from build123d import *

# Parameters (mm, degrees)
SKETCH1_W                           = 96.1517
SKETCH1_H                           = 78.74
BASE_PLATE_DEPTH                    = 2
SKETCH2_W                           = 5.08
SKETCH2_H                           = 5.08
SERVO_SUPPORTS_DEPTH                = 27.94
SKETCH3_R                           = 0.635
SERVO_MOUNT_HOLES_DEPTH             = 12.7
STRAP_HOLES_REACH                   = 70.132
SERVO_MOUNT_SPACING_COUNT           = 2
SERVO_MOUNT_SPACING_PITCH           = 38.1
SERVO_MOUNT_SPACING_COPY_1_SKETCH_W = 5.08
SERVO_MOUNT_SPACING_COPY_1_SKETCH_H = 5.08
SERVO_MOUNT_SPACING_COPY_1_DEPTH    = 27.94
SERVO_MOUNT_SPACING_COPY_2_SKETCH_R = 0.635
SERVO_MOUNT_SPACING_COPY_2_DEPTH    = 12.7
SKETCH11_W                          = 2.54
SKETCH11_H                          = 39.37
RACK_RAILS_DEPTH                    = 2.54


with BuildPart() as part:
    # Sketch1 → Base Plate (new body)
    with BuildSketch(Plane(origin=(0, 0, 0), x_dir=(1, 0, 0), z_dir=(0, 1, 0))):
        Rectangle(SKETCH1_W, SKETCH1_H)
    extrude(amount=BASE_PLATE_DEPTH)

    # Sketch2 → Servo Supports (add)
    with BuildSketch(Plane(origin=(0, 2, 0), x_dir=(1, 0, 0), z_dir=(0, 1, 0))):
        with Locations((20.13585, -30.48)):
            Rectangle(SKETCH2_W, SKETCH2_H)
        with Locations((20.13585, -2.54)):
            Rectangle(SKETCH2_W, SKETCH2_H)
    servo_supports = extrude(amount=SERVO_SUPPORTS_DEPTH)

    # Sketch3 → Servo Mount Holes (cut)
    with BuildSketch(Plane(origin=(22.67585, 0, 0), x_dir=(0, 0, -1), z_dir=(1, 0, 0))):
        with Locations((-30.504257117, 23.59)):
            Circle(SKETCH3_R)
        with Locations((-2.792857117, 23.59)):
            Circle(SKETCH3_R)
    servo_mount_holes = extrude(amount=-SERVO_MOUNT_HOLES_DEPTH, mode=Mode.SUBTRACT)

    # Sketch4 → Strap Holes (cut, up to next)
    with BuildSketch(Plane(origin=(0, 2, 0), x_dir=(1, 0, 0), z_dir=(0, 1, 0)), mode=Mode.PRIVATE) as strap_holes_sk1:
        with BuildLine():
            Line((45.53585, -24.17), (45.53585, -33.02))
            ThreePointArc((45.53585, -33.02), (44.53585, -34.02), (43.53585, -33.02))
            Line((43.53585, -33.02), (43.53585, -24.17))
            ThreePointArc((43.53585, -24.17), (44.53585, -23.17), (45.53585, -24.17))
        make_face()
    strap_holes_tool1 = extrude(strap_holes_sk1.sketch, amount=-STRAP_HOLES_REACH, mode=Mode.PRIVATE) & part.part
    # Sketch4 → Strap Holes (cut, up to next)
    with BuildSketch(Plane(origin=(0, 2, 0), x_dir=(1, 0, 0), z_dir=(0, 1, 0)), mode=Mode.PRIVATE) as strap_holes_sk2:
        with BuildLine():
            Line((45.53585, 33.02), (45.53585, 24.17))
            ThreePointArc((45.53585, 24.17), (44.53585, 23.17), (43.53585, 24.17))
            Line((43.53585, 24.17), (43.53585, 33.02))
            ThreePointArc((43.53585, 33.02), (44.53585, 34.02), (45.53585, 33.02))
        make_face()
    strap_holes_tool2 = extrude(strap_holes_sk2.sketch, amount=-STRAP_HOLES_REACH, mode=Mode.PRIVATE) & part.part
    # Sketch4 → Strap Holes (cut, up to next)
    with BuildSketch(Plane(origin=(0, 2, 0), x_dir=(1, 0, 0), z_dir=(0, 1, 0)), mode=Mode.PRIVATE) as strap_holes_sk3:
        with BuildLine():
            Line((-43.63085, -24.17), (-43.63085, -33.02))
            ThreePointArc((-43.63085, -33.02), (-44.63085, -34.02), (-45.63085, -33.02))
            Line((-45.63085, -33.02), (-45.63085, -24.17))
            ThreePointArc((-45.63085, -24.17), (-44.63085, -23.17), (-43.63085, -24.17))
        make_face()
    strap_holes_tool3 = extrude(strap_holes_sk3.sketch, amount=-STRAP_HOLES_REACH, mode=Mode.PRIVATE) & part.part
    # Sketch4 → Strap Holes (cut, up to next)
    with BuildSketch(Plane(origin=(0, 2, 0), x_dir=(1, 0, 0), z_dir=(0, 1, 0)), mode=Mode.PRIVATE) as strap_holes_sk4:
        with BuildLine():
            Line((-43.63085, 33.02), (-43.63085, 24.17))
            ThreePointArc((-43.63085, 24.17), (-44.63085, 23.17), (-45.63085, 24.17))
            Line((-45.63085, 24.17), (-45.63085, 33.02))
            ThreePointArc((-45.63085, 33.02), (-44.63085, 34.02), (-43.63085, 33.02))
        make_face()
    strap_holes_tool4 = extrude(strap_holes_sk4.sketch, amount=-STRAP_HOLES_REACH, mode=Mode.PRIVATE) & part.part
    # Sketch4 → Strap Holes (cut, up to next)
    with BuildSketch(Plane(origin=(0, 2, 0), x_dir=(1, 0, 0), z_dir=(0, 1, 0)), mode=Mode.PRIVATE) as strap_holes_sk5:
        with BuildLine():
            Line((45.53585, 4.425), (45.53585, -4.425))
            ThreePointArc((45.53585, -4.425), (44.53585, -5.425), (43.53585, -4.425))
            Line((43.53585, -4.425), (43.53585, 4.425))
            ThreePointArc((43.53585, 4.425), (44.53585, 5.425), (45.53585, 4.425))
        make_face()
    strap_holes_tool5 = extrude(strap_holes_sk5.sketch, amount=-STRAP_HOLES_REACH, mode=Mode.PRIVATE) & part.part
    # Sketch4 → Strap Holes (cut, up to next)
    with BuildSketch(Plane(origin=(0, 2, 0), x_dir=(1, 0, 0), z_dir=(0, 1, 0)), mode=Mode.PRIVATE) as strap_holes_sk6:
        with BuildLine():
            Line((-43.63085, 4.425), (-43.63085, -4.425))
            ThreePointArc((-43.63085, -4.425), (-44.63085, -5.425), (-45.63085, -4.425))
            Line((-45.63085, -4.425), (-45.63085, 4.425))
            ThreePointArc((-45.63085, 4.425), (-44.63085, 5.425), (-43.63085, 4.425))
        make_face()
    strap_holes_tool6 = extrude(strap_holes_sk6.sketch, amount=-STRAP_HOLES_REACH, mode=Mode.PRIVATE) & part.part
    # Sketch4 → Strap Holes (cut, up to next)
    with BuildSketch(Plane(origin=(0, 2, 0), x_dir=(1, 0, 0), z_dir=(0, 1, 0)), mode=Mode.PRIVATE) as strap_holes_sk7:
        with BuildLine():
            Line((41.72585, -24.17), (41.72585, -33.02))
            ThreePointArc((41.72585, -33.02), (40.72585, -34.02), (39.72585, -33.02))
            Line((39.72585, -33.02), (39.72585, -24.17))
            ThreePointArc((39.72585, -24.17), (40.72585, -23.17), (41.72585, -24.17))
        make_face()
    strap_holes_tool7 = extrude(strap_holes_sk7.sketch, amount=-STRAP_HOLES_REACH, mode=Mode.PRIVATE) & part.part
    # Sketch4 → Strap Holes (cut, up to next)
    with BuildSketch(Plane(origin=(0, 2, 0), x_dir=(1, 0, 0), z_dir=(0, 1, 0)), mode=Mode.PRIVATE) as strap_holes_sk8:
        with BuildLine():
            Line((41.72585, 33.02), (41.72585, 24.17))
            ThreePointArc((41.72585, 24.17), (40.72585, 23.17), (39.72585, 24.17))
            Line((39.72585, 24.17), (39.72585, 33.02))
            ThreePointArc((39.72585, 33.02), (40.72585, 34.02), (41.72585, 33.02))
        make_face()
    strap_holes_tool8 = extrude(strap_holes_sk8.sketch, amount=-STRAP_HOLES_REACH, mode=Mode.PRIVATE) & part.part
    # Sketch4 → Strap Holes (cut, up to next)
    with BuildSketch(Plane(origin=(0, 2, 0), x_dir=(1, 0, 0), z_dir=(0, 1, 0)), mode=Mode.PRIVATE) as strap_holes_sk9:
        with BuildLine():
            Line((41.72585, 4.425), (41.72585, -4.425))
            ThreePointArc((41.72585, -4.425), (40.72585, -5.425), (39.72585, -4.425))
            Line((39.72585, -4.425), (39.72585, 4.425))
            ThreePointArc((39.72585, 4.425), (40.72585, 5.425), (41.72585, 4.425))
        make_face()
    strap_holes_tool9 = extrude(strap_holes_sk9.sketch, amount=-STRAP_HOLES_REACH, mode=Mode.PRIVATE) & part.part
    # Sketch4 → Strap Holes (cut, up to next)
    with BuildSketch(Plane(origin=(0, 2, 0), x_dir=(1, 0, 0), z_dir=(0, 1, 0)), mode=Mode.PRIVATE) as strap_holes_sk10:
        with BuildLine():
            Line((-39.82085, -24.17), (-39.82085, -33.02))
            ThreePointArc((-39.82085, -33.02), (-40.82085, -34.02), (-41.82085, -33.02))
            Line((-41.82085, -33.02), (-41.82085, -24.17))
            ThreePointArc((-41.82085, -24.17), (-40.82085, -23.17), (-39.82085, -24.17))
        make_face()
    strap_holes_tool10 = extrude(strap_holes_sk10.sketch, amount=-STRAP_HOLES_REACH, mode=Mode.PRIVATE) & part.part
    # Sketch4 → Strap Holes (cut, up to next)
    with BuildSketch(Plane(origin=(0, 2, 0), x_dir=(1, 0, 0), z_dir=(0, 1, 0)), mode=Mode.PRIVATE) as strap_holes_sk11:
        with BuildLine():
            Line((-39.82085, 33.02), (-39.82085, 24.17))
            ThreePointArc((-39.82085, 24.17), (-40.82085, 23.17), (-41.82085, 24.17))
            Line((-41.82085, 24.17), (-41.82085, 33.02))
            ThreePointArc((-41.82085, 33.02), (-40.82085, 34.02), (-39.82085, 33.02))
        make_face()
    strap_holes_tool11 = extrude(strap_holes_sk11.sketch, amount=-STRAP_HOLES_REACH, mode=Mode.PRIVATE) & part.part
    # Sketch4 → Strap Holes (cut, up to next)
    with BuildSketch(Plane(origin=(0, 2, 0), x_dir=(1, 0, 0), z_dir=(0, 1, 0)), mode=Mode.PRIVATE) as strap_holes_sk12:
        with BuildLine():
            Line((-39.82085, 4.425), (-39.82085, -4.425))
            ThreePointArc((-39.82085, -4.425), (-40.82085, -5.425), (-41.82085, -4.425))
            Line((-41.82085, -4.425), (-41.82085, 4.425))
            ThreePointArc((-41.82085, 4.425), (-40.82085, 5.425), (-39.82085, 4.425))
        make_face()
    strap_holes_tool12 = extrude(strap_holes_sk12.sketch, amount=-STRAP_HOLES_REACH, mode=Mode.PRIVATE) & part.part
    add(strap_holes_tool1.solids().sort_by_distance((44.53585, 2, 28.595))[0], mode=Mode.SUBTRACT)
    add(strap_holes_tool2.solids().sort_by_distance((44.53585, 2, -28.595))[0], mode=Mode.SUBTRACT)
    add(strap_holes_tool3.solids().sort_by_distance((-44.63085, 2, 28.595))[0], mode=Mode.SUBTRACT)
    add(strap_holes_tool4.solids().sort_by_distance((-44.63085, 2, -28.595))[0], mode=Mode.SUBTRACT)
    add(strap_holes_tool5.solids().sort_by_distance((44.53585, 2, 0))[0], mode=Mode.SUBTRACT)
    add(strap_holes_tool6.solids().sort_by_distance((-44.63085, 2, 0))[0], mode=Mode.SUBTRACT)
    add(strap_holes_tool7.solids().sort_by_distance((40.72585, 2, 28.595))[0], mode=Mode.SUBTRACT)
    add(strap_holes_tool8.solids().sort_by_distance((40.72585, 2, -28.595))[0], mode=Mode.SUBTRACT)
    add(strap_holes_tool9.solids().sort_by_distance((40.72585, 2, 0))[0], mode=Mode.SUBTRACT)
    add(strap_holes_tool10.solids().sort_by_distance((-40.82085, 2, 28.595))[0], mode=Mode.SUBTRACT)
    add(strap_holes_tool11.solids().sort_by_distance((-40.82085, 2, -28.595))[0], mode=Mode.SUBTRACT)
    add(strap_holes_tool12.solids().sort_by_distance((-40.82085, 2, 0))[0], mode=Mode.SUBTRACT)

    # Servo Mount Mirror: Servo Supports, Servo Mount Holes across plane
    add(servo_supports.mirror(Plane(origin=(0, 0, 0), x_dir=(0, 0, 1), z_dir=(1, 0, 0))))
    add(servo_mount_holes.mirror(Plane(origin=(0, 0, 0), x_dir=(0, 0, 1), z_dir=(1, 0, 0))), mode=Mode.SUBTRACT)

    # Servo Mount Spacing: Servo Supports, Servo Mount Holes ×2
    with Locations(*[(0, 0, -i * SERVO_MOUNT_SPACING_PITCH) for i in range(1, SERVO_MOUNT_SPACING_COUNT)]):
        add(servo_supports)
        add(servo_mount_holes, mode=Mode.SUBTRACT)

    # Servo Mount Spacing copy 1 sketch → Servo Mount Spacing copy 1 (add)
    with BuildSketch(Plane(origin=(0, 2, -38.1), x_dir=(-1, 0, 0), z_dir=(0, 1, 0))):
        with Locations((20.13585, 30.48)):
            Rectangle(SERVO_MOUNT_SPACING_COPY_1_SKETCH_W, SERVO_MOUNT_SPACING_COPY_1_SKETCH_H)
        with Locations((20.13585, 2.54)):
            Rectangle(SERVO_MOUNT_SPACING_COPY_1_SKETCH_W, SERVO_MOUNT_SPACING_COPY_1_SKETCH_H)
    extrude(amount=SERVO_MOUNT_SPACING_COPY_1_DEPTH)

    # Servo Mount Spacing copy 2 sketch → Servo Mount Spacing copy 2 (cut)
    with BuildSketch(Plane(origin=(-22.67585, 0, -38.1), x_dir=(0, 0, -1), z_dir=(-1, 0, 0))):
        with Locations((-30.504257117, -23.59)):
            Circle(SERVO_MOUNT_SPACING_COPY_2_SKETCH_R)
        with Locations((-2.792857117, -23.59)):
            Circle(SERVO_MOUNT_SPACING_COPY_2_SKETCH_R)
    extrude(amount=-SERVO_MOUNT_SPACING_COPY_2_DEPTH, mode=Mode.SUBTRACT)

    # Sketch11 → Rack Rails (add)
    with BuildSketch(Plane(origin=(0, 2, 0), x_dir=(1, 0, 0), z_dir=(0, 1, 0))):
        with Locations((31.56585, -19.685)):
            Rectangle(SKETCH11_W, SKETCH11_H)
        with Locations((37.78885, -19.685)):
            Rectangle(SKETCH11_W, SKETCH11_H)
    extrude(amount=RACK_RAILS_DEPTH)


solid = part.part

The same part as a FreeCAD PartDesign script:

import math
import FreeCAD as App
import Part
import Sketcher
Q = App.Units.Quantity


def add_polygon(sketch, points):
    """Adds a closed chain of lines whose ends are joined by coincident constraints."""
    first, n = sketch.GeometryCount, len(points)
    for a, b in zip(points, points[1:] + points[:1]):
        sketch.addGeometry(Part.LineSegment(App.Vector(*a, 0), App.Vector(*b, 0)), False)
    for i in range(n):
        sketch.addConstraint(Sketcher.Constraint("Coincident", first + i, 2, first + (i + 1) % n, 1))

doc = App.newDocument("Part")
body = doc.addObject("PartDesign::Body", "Body")

sketch1 = body.newObject("Sketcher::SketchObject", "Sketch")
sketch1.AttachmentSupport = (doc.getObject("XZ_Plane"), [""])
sketch1.MapMode = "FlatFace"
add_polygon(sketch1, [(-48, -39), (-48, 39), (48, 39), (48, -39)])
sketch1.addConstraint(Sketcher.Constraint("Vertical", 0))
sketch1.addConstraint(Sketcher.Constraint("Horizontal", 1))
sketch1.addConstraint(Sketcher.Constraint("Vertical", 2))
sketch1.addConstraint(Sketcher.Constraint("Horizontal", 3))
sketch1.addConstraint(Sketcher.Constraint("Symmetric", 0, 2, 2, 2, -1, 1))
sketch1.addConstraint(Sketcher.Constraint("DistanceY", 0, 1, 0, 2, Q("3.1 in")))
sketch1.addConstraint(Sketcher.Constraint("DistanceX", 1, 1, 1, 2, Q("3.7855 in")))
pad1 = body.newObject("PartDesign::Pad", "Pad")
pad1.Profile = sketch1
pad1.Length = 2
pad1.Reversed = True

sketch2 = body.newObject("Sketcher::SketchObject", "Sketch001")
sketch2.AttachmentSupport = (doc.getObject("XZ_Plane"), [""])
sketch2.MapMode = "FlatFace"
sketch2.AttachmentOffset = App.Placement(App.Vector(0, 0, -2), App.Rotation())
add_polygon(sketch2, [(18, 28), (18, 33), (23, 33), (23, 28)])
add_polygon(sketch2, [(18, 0), (18, 5), (23, 5), (23, 0)])
sketch2.addConstraint(Sketcher.Constraint("Vertical", 0))
sketch2.addConstraint(Sketcher.Constraint("Horizontal", 1))
sketch2.addConstraint(Sketcher.Constraint("Vertical", 2))
sketch2.addConstraint(Sketcher.Constraint("Horizontal", 3))
sketch2.addConstraint(Sketcher.Constraint("Vertical", 4))
sketch2.addConstraint(Sketcher.Constraint("Horizontal", 5))
sketch2.addConstraint(Sketcher.Constraint("Vertical", 6))
sketch2.addConstraint(Sketcher.Constraint("Horizontal", 7))
sketch2.addConstraint(Sketcher.Constraint("PointOnObject", 6, 2, -1))
sketch2.addConstraint(Sketcher.Constraint("Vertical", 3, 2, 4, 2))
sketch2.addConstraint(Sketcher.Constraint("Vertical", 2, 2, 5, 2))
sketch2.addConstraint(Sketcher.Constraint("Equal", 7, 0))
sketch2.addConstraint(Sketcher.Constraint("Equal", 2, 4))
sketch2.addConstraint(Sketcher.Constraint("DistanceX", 1, 1, 1, 2, Q("0.2 in")))
sketch2.addConstraint(Sketcher.Constraint("DistanceY", -1, 1, 0, 2, Q("1.3 in")))
sketch2.addConstraint(Sketcher.Constraint("DistanceX", -1, 1, 0, 2, Q("17.59585 mm")))
pad2 = body.newObject("PartDesign::Pad", "Pad001")
pad2.Profile = sketch2
pad2.Length = Q("1.1 in")
pad2.Reversed = True

sketch3 = body.newObject("Sketcher::SketchObject", "Sketch002")
sketch3.AttachmentSupport = (doc.getObject("YZ_Plane"), [""])
sketch3.MapMode = "FlatFace"
sketch3.AttachmentOffset = App.Placement(App.Vector(0, 0, 22.67585), App.Rotation())
sketch3.addGeometry(Part.Circle(App.Vector(23.6, 30.5, 0), App.Vector(0, 0, 1), 0.6), False)
sketch3.addGeometry(Part.Circle(App.Vector(23.6, 2.8, 0), App.Vector(0, 0, 1), 0.6), False)
sketch3.addConstraint(Sketcher.Constraint("Equal", 0, 1))
sketch3.addConstraint(Sketcher.Constraint("Vertical", 0, 3, 1, 3))
sketch3.addConstraint(Sketcher.Constraint("Diameter", 0, Q("0.05 in")))
sketch3.addConstraint(Sketcher.Constraint("DistanceY", 1, 3, 0, 3, Q("1.091 in")))
sketch3.addConstraint(Sketcher.Constraint("DistanceX", -1, 1, 0, 3, Q("23.59 mm")))
sketch3.addConstraint(Sketcher.Constraint("DistanceY", -1, 1, 0, 3, Q("30.504257 mm")))
pocket1 = body.newObject("PartDesign::Pocket", "Pocket")
pocket1.Profile = sketch3
pocket1.Length = Q("0.5 in")

sketch4 = body.newObject("Sketcher::SketchObject", "Sketch003")
sketch4.AttachmentSupport = (doc.getObject("XZ_Plane"), [""])
sketch4.MapMode = "FlatFace"
sketch4.AttachmentOffset = App.Placement(App.Vector(0, 0, -2), App.Rotation())
sketch4.addGeometry(Part.LineSegment(App.Vector(45.5, 33, 0), App.Vector(45.5, 24.2, 0)), False)
sketch4.addGeometry(Part.ArcOfCircle(Part.Circle(App.Vector(44.5, 24.2, 0), App.Vector(0, 0, 1), 1), math.radians(180), math.radians(360)), False)
sketch4.addGeometry(Part.LineSegment(App.Vector(43.5, 24.2, 0), App.Vector(43.5, 33, 0)), False)
sketch4.addGeometry(Part.ArcOfCircle(Part.Circle(App.Vector(44.5, 33, 0), App.Vector(0, 0, 1), 1), math.radians(0), math.radians(180)), False)
sketch4.addConstraint(Sketcher.Constraint("Tangent", 0, 2, 1, 2))
sketch4.addConstraint(Sketcher.Constraint("Tangent", 1, 1, 2, 1))
sketch4.addConstraint(Sketcher.Constraint("Tangent", 2, 2, 3, 2))
sketch4.addConstraint(Sketcher.Constraint("Tangent", 3, 1, 0, 1))
sketch4.addConstraint(Sketcher.Constraint("Vertical", 0))
sketch4.addConstraint(Sketcher.Constraint("Vertical", 2))
sketch4.addConstraint(Sketcher.Constraint("DistanceY", -1, 1, 3, 3, Q("1.3 in")))
sketch4.addConstraint(Sketcher.Constraint("Radius", 1, Q("1 mm")))
sketch4.addConstraint(Sketcher.Constraint("DistanceY", 0, 2, 0, 1, Q("8.85 mm")))
sketch4.addConstraint(Sketcher.Constraint("DistanceX", -1, 1, 1, 3, Q("44.53585 mm")))
pocket2 = body.newObject("PartDesign::Pocket", "Pocket001")
pocket2.Profile = sketch4
pocket2.Type = "UpToFirst"
pocket2.Reversed = True

sketch5 = body.newObject("Sketcher::SketchObject", "Sketch004")
sketch5.AttachmentSupport = (doc.getObject("XZ_Plane"), [""])
sketch5.MapMode = "FlatFace"
sketch5.AttachmentOffset = App.Placement(App.Vector(0, 0, -2), App.Rotation())
sketch5.addGeometry(Part.LineSegment(App.Vector(45.5, -24.2, 0), App.Vector(45.5, -33, 0)), False)
sketch5.addGeometry(Part.ArcOfCircle(Part.Circle(App.Vector(44.5, -33, 0), App.Vector(0, 0, 1), 1), math.radians(180), math.radians(360)), False)
sketch5.addGeometry(Part.LineSegment(App.Vector(43.5, -33, 0), App.Vector(43.5, -24.2, 0)), False)
sketch5.addGeometry(Part.ArcOfCircle(Part.Circle(App.Vector(44.5, -24.2, 0), App.Vector(0, 0, 1), 1), math.radians(0), math.radians(180)), False)
sketch5.addConstraint(Sketcher.Constraint("Tangent", 0, 2, 1, 2))
sketch5.addConstraint(Sketcher.Constraint("Tangent", 1, 1, 2, 1))
sketch5.addConstraint(Sketcher.Constraint("Tangent", 2, 2, 3, 2))
sketch5.addConstraint(Sketcher.Constraint("Tangent", 3, 1, 0, 1))
sketch5.addConstraint(Sketcher.Constraint("Vertical", 0))
sketch5.addConstraint(Sketcher.Constraint("Vertical", 2))
sketch5.addConstraint(Sketcher.Constraint("DistanceY", 1, 3, -1, 1, Q("1.3 in")))
sketch5.addConstraint(Sketcher.Constraint("Radius", 1, Q("1 mm")))
sketch5.addConstraint(Sketcher.Constraint("DistanceY", 0, 2, 0, 1, Q("8.85 mm")))
sketch5.addConstraint(Sketcher.Constraint("DistanceX", -1, 1, 1, 3, Q("44.53585 mm")))
pocket3 = body.newObject("PartDesign::Pocket", "Pocket002")
pocket3.Profile = sketch5
pocket3.Type = "UpToFirst"
pocket3.Reversed = True

sketch6 = body.newObject("Sketcher::SketchObject", "Sketch005")
sketch6.AttachmentSupport = (doc.getObject("XZ_Plane"), [""])
sketch6.MapMode = "FlatFace"
sketch6.AttachmentOffset = App.Placement(App.Vector(0, 0, -2), App.Rotation())
sketch6.addGeometry(Part.LineSegment(App.Vector(-43.6, 33, 0), App.Vector(-43.6, 24.2, 0)), False)
sketch6.addGeometry(Part.ArcOfCircle(Part.Circle(App.Vector(-44.6, 24.2, 0), App.Vector(0, 0, 1), 1), math.radians(180), math.radians(360)), False)
sketch6.addGeometry(Part.LineSegment(App.Vector(-45.6, 24.2, 0), App.Vector(-45.6, 33, 0)), False)
sketch6.addGeometry(Part.ArcOfCircle(Part.Circle(App.Vector(-44.6, 33, 0), App.Vector(0, 0, 1), 1), math.radians(0), math.radians(180)), False)
sketch6.addConstraint(Sketcher.Constraint("Tangent", 0, 2, 1, 2))
sketch6.addConstraint(Sketcher.Constraint("Tangent", 1, 1, 2, 1))
sketch6.addConstraint(Sketcher.Constraint("Tangent", 2, 2, 3, 2))
sketch6.addConstraint(Sketcher.Constraint("Tangent", 3, 1, 0, 1))
sketch6.addConstraint(Sketcher.Constraint("Vertical", 0))
sketch6.addConstraint(Sketcher.Constraint("Vertical", 2))
sketch6.addConstraint(Sketcher.Constraint("DistanceY", -1, 1, 3, 3, Q("1.3 in")))
sketch6.addConstraint(Sketcher.Constraint("Radius", 1, Q("1 mm")))
sketch6.addConstraint(Sketcher.Constraint("DistanceY", 0, 2, 0, 1, Q("8.85 mm")))
sketch6.addConstraint(Sketcher.Constraint("DistanceX", 1, 3, -1, 1, Q("44.63085 mm")))
pocket4 = body.newObject("PartDesign::Pocket", "Pocket003")
pocket4.Profile = sketch6
pocket4.Type = "UpToFirst"
pocket4.Reversed = True

sketch7 = body.newObject("Sketcher::SketchObject", "Sketch006")
sketch7.AttachmentSupport = (doc.getObject("XZ_Plane"), [""])
sketch7.MapMode = "FlatFace"
sketch7.AttachmentOffset = App.Placement(App.Vector(0, 0, -2), App.Rotation())
sketch7.addGeometry(Part.LineSegment(App.Vector(-43.6, -24.2, 0), App.Vector(-43.6, -33, 0)), False)
sketch7.addGeometry(Part.ArcOfCircle(Part.Circle(App.Vector(-44.6, -33, 0), App.Vector(0, 0, 1), 1), math.radians(180), math.radians(360)), False)
sketch7.addGeometry(Part.LineSegment(App.Vector(-45.6, -33, 0), App.Vector(-45.6, -24.2, 0)), False)
sketch7.addGeometry(Part.ArcOfCircle(Part.Circle(App.Vector(-44.6, -24.2, 0), App.Vector(0, 0, 1), 1), math.radians(0), math.radians(180)), False)
sketch7.addConstraint(Sketcher.Constraint("Tangent", 0, 2, 1, 2))
sketch7.addConstraint(Sketcher.Constraint("Tangent", 1, 1, 2, 1))
sketch7.addConstraint(Sketcher.Constraint("Tangent", 2, 2, 3, 2))
sketch7.addConstraint(Sketcher.Constraint("Tangent", 3, 1, 0, 1))
sketch7.addConstraint(Sketcher.Constraint("Vertical", 0))
sketch7.addConstraint(Sketcher.Constraint("Vertical", 2))
sketch7.addConstraint(Sketcher.Constraint("DistanceY", 1, 3, -1, 1, Q("1.3 in")))
sketch7.addConstraint(Sketcher.Constraint("Radius", 1, Q("1 mm")))
sketch7.addConstraint(Sketcher.Constraint("DistanceY", 0, 2, 0, 1, Q("8.85 mm")))
sketch7.addConstraint(Sketcher.Constraint("DistanceX", 1, 3, -1, 1, Q("44.63085 mm")))
pocket5 = body.newObject("PartDesign::Pocket", "Pocket004")
pocket5.Profile = sketch7
pocket5.Type = "UpToFirst"
pocket5.Reversed = True

sketch8 = body.newObject("Sketcher::SketchObject", "Sketch007")
sketch8.AttachmentSupport = (doc.getObject("XZ_Plane"), [""])
sketch8.MapMode = "FlatFace"
sketch8.AttachmentOffset = App.Placement(App.Vector(0, 0, -2), App.Rotation())
sketch8.addGeometry(Part.LineSegment(App.Vector(45.5, 4.4, 0), App.Vector(45.5, -4.4, 0)), False)
sketch8.addGeometry(Part.ArcOfCircle(Part.Circle(App.Vector(44.5, -4.4, 0), App.Vector(0, 0, 1), 1), math.radians(180), math.radians(360)), False)
sketch8.addGeometry(Part.LineSegment(App.Vector(43.5, -4.4, 0), App.Vector(43.5, 4.4, 0)), False)
sketch8.addGeometry(Part.ArcOfCircle(Part.Circle(App.Vector(44.5, 4.4, 0), App.Vector(0, 0, 1), 1), math.radians(0), math.radians(180)), False)
sketch8.addConstraint(Sketcher.Constraint("Tangent", 0, 2, 1, 2))
sketch8.addConstraint(Sketcher.Constraint("Tangent", 1, 1, 2, 1))
sketch8.addConstraint(Sketcher.Constraint("Tangent", 2, 2, 3, 2))
sketch8.addConstraint(Sketcher.Constraint("Tangent", 3, 1, 0, 1))
sketch8.addConstraint(Sketcher.Constraint("Vertical", 0))
sketch8.addConstraint(Sketcher.Constraint("Vertical", 2))
sketch8.addConstraint(Sketcher.Constraint("Radius", 1, Q("1 mm")))
sketch8.addConstraint(Sketcher.Constraint("DistanceY", 0, 2, 0, 1, Q("8.85 mm")))
sketch8.addConstraint(Sketcher.Constraint("DistanceY", 1, 3, -1, 1, Q("4.425 mm")))
sketch8.addConstraint(Sketcher.Constraint("DistanceX", -1, 1, 1, 3, Q("44.53585 mm")))
pocket6 = body.newObject("PartDesign::Pocket", "Pocket005")
pocket6.Profile = sketch8
pocket6.Type = "UpToFirst"
pocket6.Reversed = True

sketch9 = body.newObject("Sketcher::SketchObject", "Sketch008")
sketch9.AttachmentSupport = (doc.getObject("XZ_Plane"), [""])
sketch9.MapMode = "FlatFace"
sketch9.AttachmentOffset = App.Placement(App.Vector(0, 0, -2), App.Rotation())
sketch9.addGeometry(Part.LineSegment(App.Vector(-43.6, 4.4, 0), App.Vector(-43.6, -4.4, 0)), False)
sketch9.addGeometry(Part.ArcOfCircle(Part.Circle(App.Vector(-44.6, -4.4, 0), App.Vector(0, 0, 1), 1), math.radians(180), math.radians(360)), False)
sketch9.addGeometry(Part.LineSegment(App.Vector(-45.6, -4.4, 0), App.Vector(-45.6, 4.4, 0)), False)
sketch9.addGeometry(Part.ArcOfCircle(Part.Circle(App.Vector(-44.6, 4.4, 0), App.Vector(0, 0, 1), 1), math.radians(0), math.radians(180)), False)
sketch9.addConstraint(Sketcher.Constraint("Tangent", 0, 2, 1, 2))
sketch9.addConstraint(Sketcher.Constraint("Tangent", 1, 1, 2, 1))
sketch9.addConstraint(Sketcher.Constraint("Tangent", 2, 2, 3, 2))
sketch9.addConstraint(Sketcher.Constraint("Tangent", 3, 1, 0, 1))
sketch9.addConstraint(Sketcher.Constraint("Vertical", 0))
sketch9.addConstraint(Sketcher.Constraint("Vertical", 2))
sketch9.addConstraint(Sketcher.Constraint("Radius", 1, Q("1 mm")))
sketch9.addConstraint(Sketcher.Constraint("DistanceY", 0, 2, 0, 1, Q("8.85 mm")))
sketch9.addConstraint(Sketcher.Constraint("DistanceY", 1, 3, -1, 1, Q("4.425 mm")))
sketch9.addConstraint(Sketcher.Constraint("DistanceX", 1, 3, -1, 1, Q("44.63085 mm")))
pocket7 = body.newObject("PartDesign::Pocket", "Pocket006")
pocket7.Profile = sketch9
pocket7.Type = "UpToFirst"
pocket7.Reversed = True

sketch10 = body.newObject("Sketcher::SketchObject", "Sketch009")
sketch10.AttachmentSupport = (doc.getObject("XZ_Plane"), [""])
sketch10.MapMode = "FlatFace"
sketch10.AttachmentOffset = App.Placement(App.Vector(0, 0, -2), App.Rotation())
sketch10.addGeometry(Part.LineSegment(App.Vector(41.7, 33, 0), App.Vector(41.7, 24.2, 0)), False)
sketch10.addGeometry(Part.ArcOfCircle(Part.Circle(App.Vector(40.7, 24.2, 0), App.Vector(0, 0, 1), 1), math.radians(180), math.radians(360)), False)
sketch10.addGeometry(Part.LineSegment(App.Vector(39.7, 24.2, 0), App.Vector(39.7, 33, 0)), False)
sketch10.addGeometry(Part.ArcOfCircle(Part.Circle(App.Vector(40.7, 33, 0), App.Vector(0, 0, 1), 1), math.radians(0), math.radians(180)), False)
sketch10.addConstraint(Sketcher.Constraint("Tangent", 0, 2, 1, 2))
sketch10.addConstraint(Sketcher.Constraint("Tangent", 1, 1, 2, 1))
sketch10.addConstraint(Sketcher.Constraint("Tangent", 2, 2, 3, 2))
sketch10.addConstraint(Sketcher.Constraint("Tangent", 3, 1, 0, 1))
sketch10.addConstraint(Sketcher.Constraint("Vertical", 0))
sketch10.addConstraint(Sketcher.Constraint("Vertical", 2))
sketch10.addConstraint(Sketcher.Constraint("DistanceY", -1, 1, 3, 3, Q("1.3 in")))
sketch10.addConstraint(Sketcher.Constraint("Radius", 1, Q("1 mm")))
sketch10.addConstraint(Sketcher.Constraint("DistanceY", 0, 2, 0, 1, Q("8.85 mm")))
sketch10.addConstraint(Sketcher.Constraint("DistanceX", -1, 1, 1, 3, Q("40.72585 mm")))
pocket8 = body.newObject("PartDesign::Pocket", "Pocket007")
pocket8.Profile = sketch10
pocket8.Type = "UpToFirst"
pocket8.Reversed = True

sketch11 = body.newObject("Sketcher::SketchObject", "Sketch010")
sketch11.AttachmentSupport = (doc.getObject("XZ_Plane"), [""])
sketch11.MapMode = "FlatFace"
sketch11.AttachmentOffset = App.Placement(App.Vector(0, 0, -2), App.Rotation())
sketch11.addGeometry(Part.LineSegment(App.Vector(41.7, -24.2, 0), App.Vector(41.7, -33, 0)), False)
sketch11.addGeometry(Part.ArcOfCircle(Part.Circle(App.Vector(40.7, -33, 0), App.Vector(0, 0, 1), 1), math.radians(180), math.radians(360)), False)
sketch11.addGeometry(Part.LineSegment(App.Vector(39.7, -33, 0), App.Vector(39.7, -24.2, 0)), False)
sketch11.addGeometry(Part.ArcOfCircle(Part.Circle(App.Vector(40.7, -24.2, 0), App.Vector(0, 0, 1), 1), math.radians(0), math.radians(180)), False)
sketch11.addConstraint(Sketcher.Constraint("Tangent", 0, 2, 1, 2))
sketch11.addConstraint(Sketcher.Constraint("Tangent", 1, 1, 2, 1))
sketch11.addConstraint(Sketcher.Constraint("Tangent", 2, 2, 3, 2))
sketch11.addConstraint(Sketcher.Constraint("Tangent", 3, 1, 0, 1))
sketch11.addConstraint(Sketcher.Constraint("Vertical", 0))
sketch11.addConstraint(Sketcher.Constraint("Vertical", 2))
sketch11.addConstraint(Sketcher.Constraint("DistanceY", 1, 3, -1, 1, Q("1.3 in")))
sketch11.addConstraint(Sketcher.Constraint("Radius", 1, Q("1 mm")))
sketch11.addConstraint(Sketcher.Constraint("DistanceY", 0, 2, 0, 1, Q("8.85 mm")))
sketch11.addConstraint(Sketcher.Constraint("DistanceX", -1, 1, 1, 3, Q("40.72585 mm")))
pocket9 = body.newObject("PartDesign::Pocket", "Pocket008")
pocket9.Profile = sketch11
pocket9.Type = "UpToFirst"
pocket9.Reversed = True

sketch12 = body.newObject("Sketcher::SketchObject", "Sketch011")
sketch12.AttachmentSupport = (doc.getObject("XZ_Plane"), [""])
sketch12.MapMode = "FlatFace"
sketch12.AttachmentOffset = App.Placement(App.Vector(0, 0, -2), App.Rotation())
sketch12.addGeometry(Part.LineSegment(App.Vector(41.7, 4.4, 0), App.Vector(41.7, -4.4, 0)), False)
sketch12.addGeometry(Part.ArcOfCircle(Part.Circle(App.Vector(40.7, -4.4, 0), App.Vector(0, 0, 1), 1), math.radians(180), math.radians(360)), False)
sketch12.addGeometry(Part.LineSegment(App.Vector(39.7, -4.4, 0), App.Vector(39.7, 4.4, 0)), False)
sketch12.addGeometry(Part.ArcOfCircle(Part.Circle(App.Vector(40.7, 4.4, 0), App.Vector(0, 0, 1), 1), math.radians(0), math.radians(180)), False)
sketch12.addConstraint(Sketcher.Constraint("Tangent", 0, 2, 1, 2))
sketch12.addConstraint(Sketcher.Constraint("Tangent", 1, 1, 2, 1))
sketch12.addConstraint(Sketcher.Constraint("Tangent", 2, 2, 3, 2))
sketch12.addConstraint(Sketcher.Constraint("Tangent", 3, 1, 0, 1))
sketch12.addConstraint(Sketcher.Constraint("Vertical", 0))
sketch12.addConstraint(Sketcher.Constraint("Vertical", 2))
sketch12.addConstraint(Sketcher.Constraint("Radius", 1, Q("1 mm")))
sketch12.addConstraint(Sketcher.Constraint("DistanceY", 0, 2, 0, 1, Q("8.85 mm")))
sketch12.addConstraint(Sketcher.Constraint("DistanceY", 1, 3, -1, 1, Q("4.425 mm")))
sketch12.addConstraint(Sketcher.Constraint("DistanceX", -1, 1, 1, 3, Q("40.72585 mm")))
pocket10 = body.newObject("PartDesign::Pocket", "Pocket009")
pocket10.Profile = sketch12
pocket10.Type = "UpToFirst"
pocket10.Reversed = True

sketch13 = body.newObject("Sketcher::SketchObject", "Sketch012")
sketch13.AttachmentSupport = (doc.getObject("XZ_Plane"), [""])
sketch13.MapMode = "FlatFace"
sketch13.AttachmentOffset = App.Placement(App.Vector(0, 0, -2), App.Rotation())
sketch13.addGeometry(Part.LineSegment(App.Vector(-39.8, 33, 0), App.Vector(-39.8, 24.2, 0)), False)
sketch13.addGeometry(Part.ArcOfCircle(Part.Circle(App.Vector(-40.8, 24.2, 0), App.Vector(0, 0, 1), 1), math.radians(180), math.radians(360)), False)
sketch13.addGeometry(Part.LineSegment(App.Vector(-41.8, 24.2, 0), App.Vector(-41.8, 33, 0)), False)
sketch13.addGeometry(Part.ArcOfCircle(Part.Circle(App.Vector(-40.8, 33, 0), App.Vector(0, 0, 1), 1), math.radians(0), math.radians(180)), False)
sketch13.addConstraint(Sketcher.Constraint("Tangent", 0, 2, 1, 2))
sketch13.addConstraint(Sketcher.Constraint("Tangent", 1, 1, 2, 1))
sketch13.addConstraint(Sketcher.Constraint("Tangent", 2, 2, 3, 2))
sketch13.addConstraint(Sketcher.Constraint("Tangent", 3, 1, 0, 1))
sketch13.addConstraint(Sketcher.Constraint("Vertical", 0))
sketch13.addConstraint(Sketcher.Constraint("Vertical", 2))
sketch13.addConstraint(Sketcher.Constraint("DistanceY", -1, 1, 3, 3, Q("1.3 in")))
sketch13.addConstraint(Sketcher.Constraint("Radius", 1, Q("1 mm")))
sketch13.addConstraint(Sketcher.Constraint("DistanceY", 0, 2, 0, 1, Q("8.85 mm")))
sketch13.addConstraint(Sketcher.Constraint("DistanceX", 1, 3, -1, 1, Q("40.82085 mm")))
pocket11 = body.newObject("PartDesign::Pocket", "Pocket010")
pocket11.Profile = sketch13
pocket11.Type = "UpToFirst"
pocket11.Reversed = True

sketch14 = body.newObject("Sketcher::SketchObject", "Sketch013")
sketch14.AttachmentSupport = (doc.getObject("XZ_Plane"), [""])
sketch14.MapMode = "FlatFace"
sketch14.AttachmentOffset = App.Placement(App.Vector(0, 0, -2), App.Rotation())
sketch14.addGeometry(Part.LineSegment(App.Vector(-39.8, -24.2, 0), App.Vector(-39.8, -33, 0)), False)
sketch14.addGeometry(Part.ArcOfCircle(Part.Circle(App.Vector(-40.8, -33, 0), App.Vector(0, 0, 1), 1), math.radians(180), math.radians(360)), False)
sketch14.addGeometry(Part.LineSegment(App.Vector(-41.8, -33, 0), App.Vector(-41.8, -24.2, 0)), False)
sketch14.addGeometry(Part.ArcOfCircle(Part.Circle(App.Vector(-40.8, -24.2, 0), App.Vector(0, 0, 1), 1), math.radians(0), math.radians(180)), False)
sketch14.addConstraint(Sketcher.Constraint("Tangent", 0, 2, 1, 2))
sketch14.addConstraint(Sketcher.Constraint("Tangent", 1, 1, 2, 1))
sketch14.addConstraint(Sketcher.Constraint("Tangent", 2, 2, 3, 2))
sketch14.addConstraint(Sketcher.Constraint("Tangent", 3, 1, 0, 1))
sketch14.addConstraint(Sketcher.Constraint("Vertical", 0))
sketch14.addConstraint(Sketcher.Constraint("Vertical", 2))
sketch14.addConstraint(Sketcher.Constraint("DistanceY", 1, 3, -1, 1, Q("1.3 in")))
sketch14.addConstraint(Sketcher.Constraint("Radius", 1, Q("1 mm")))
sketch14.addConstraint(Sketcher.Constraint("DistanceY", 0, 2, 0, 1, Q("8.85 mm")))
sketch14.addConstraint(Sketcher.Constraint("DistanceX", 1, 3, -1, 1, Q("40.82085 mm")))
pocket12 = body.newObject("PartDesign::Pocket", "Pocket011")
pocket12.Profile = sketch14
pocket12.Type = "UpToFirst"
pocket12.Reversed = True

sketch15 = body.newObject("Sketcher::SketchObject", "Sketch014")
sketch15.AttachmentSupport = (doc.getObject("XZ_Plane"), [""])
sketch15.MapMode = "FlatFace"
sketch15.AttachmentOffset = App.Placement(App.Vector(0, 0, -2), App.Rotation())
sketch15.addGeometry(Part.LineSegment(App.Vector(-39.8, 4.4, 0), App.Vector(-39.8, -4.4, 0)), False)
sketch15.addGeometry(Part.ArcOfCircle(Part.Circle(App.Vector(-40.8, -4.4, 0), App.Vector(0, 0, 1), 1), math.radians(180), math.radians(360)), False)
sketch15.addGeometry(Part.LineSegment(App.Vector(-41.8, -4.4, 0), App.Vector(-41.8, 4.4, 0)), False)
sketch15.addGeometry(Part.ArcOfCircle(Part.Circle(App.Vector(-40.8, 4.4, 0), App.Vector(0, 0, 1), 1), math.radians(0), math.radians(180)), False)
sketch15.addConstraint(Sketcher.Constraint("Tangent", 0, 2, 1, 2))
sketch15.addConstraint(Sketcher.Constraint("Tangent", 1, 1, 2, 1))
sketch15.addConstraint(Sketcher.Constraint("Tangent", 2, 2, 3, 2))
sketch15.addConstraint(Sketcher.Constraint("Tangent", 3, 1, 0, 1))
sketch15.addConstraint(Sketcher.Constraint("Vertical", 0))
sketch15.addConstraint(Sketcher.Constraint("Vertical", 2))
sketch15.addConstraint(Sketcher.Constraint("Radius", 1, Q("1 mm")))
sketch15.addConstraint(Sketcher.Constraint("DistanceY", 0, 2, 0, 1, Q("8.85 mm")))
sketch15.addConstraint(Sketcher.Constraint("DistanceY", 1, 3, -1, 1, Q("4.425 mm")))
sketch15.addConstraint(Sketcher.Constraint("DistanceX", 1, 3, -1, 1, Q("40.82085 mm")))
pocket13 = body.newObject("PartDesign::Pocket", "Pocket012")
pocket13.Profile = sketch15
pocket13.Type = "UpToFirst"
pocket13.Reversed = True
doc.recompute()

mirrored = body.newObject("PartDesign::Mirrored", "Mirrored")
mirrored.Originals = [pad2, pocket1]
mirrored.MirrorPlane = (doc.getObject("YZ_Plane"), [""])
body.Tip = mirrored
doc.recompute()

linearpattern = body.newObject("PartDesign::LinearPattern", "LinearPattern")
linearpattern.Originals = [pad2, pocket1]
linearpattern.Direction = (doc.getObject("Z_Axis"), [""])
linearpattern.Mode = "offset"
linearpattern.Offset = Q("1.5 in")
linearpattern.Occurrences = 2
linearpattern.Reversed = True
body.Tip = linearpattern

sketch16 = body.newObject("Sketcher::SketchObject", "Sketch015")
sketch16.AttachmentSupport = (doc.getObject("XZ_Plane"), [""])
sketch16.MapMode = "FlatFace"
sketch16.AttachmentOffset = App.Placement(App.Vector(0, 0, -2), App.Rotation())
add_polygon(sketch16, [(-18, -5), (-18, -10), (-23, -10), (-23, -5)])
add_polygon(sketch16, [(-18, -33), (-18, -38), (-23, -38), (-23, -33)])
sketch16.addConstraint(Sketcher.Constraint("Vertical", 0))
sketch16.addConstraint(Sketcher.Constraint("Horizontal", 1))
sketch16.addConstraint(Sketcher.Constraint("Vertical", 2))
sketch16.addConstraint(Sketcher.Constraint("Horizontal", 3))
sketch16.addConstraint(Sketcher.Constraint("Vertical", 4))
sketch16.addConstraint(Sketcher.Constraint("Horizontal", 5))
sketch16.addConstraint(Sketcher.Constraint("Vertical", 6))
sketch16.addConstraint(Sketcher.Constraint("Horizontal", 7))
sketch16.addConstraint(Sketcher.Constraint("Vertical", 3, 2, 4, 2))
sketch16.addConstraint(Sketcher.Constraint("Vertical", 2, 2, 5, 2))
sketch16.addConstraint(Sketcher.Constraint("Equal", 7, 0))
sketch16.addConstraint(Sketcher.Constraint("Equal", 2, 4))
sketch16.addConstraint(Sketcher.Constraint("DistanceX", 1, 2, 1, 1, Q("0.2 in")))
sketch16.addConstraint(Sketcher.Constraint("DistanceY", 0, 2, -1, 1, Q("0.4 in")))
sketch16.addConstraint(Sketcher.Constraint("DistanceY", 4, 2, -1, 1, Q("1.5 in")))
sketch16.addConstraint(Sketcher.Constraint("DistanceX", 0, 2, -1, 1, Q("17.59585 mm")))
pad3 = body.newObject("PartDesign::Pad", "Pad002")
pad3.Profile = sketch16
pad3.Length = Q("1.1 in")
pad3.Reversed = True

sketch17 = body.newObject("Sketcher::SketchObject", "Sketch016")
sketch17.AttachmentSupport = (doc.getObject("YZ_Plane"), [""])
sketch17.MapMode = "FlatFace"
sketch17.AttachmentOffset = App.Placement(App.Vector(0, 0, -22.67585), App.Rotation())
sketch17.addGeometry(Part.Circle(App.Vector(23.6, -7.6, 0), App.Vector(0, 0, 1), 0.6), False)
sketch17.addGeometry(Part.Circle(App.Vector(23.6, -35.3, 0), App.Vector(0, 0, 1), 0.6), False)
sketch17.addConstraint(Sketcher.Constraint("Equal", 0, 1))
sketch17.addConstraint(Sketcher.Constraint("Vertical", 0, 3, 1, 3))
sketch17.addConstraint(Sketcher.Constraint("Diameter", 0, Q("0.05 in")))
sketch17.addConstraint(Sketcher.Constraint("DistanceY", 1, 3, 0, 3, Q("1.091 in")))
sketch17.addConstraint(Sketcher.Constraint("DistanceX", -1, 1, 0, 3, Q("23.59 mm")))
sketch17.addConstraint(Sketcher.Constraint("DistanceY", 0, 3, -1, 1, Q("7.595743 mm")))
pocket14 = body.newObject("PartDesign::Pocket", "Pocket013")
pocket14.Profile = sketch17
pocket14.Length = Q("0.5 in")
pocket14.Reversed = True

sketch18 = body.newObject("Sketcher::SketchObject", "Sketch017")
sketch18.AttachmentSupport = (doc.getObject("XZ_Plane"), [""])
sketch18.MapMode = "FlatFace"
sketch18.AttachmentOffset = App.Placement(App.Vector(0, 0, -2), App.Rotation())
add_polygon(sketch18, [(30.3, 0), (30.3, 39.4), (32.8, 39.4), (32.8, 0)])
add_polygon(sketch18, [(36.5, 0), (36.5, 39.4), (39.1, 39.4), (39.1, 0)])
sketch18.addConstraint(Sketcher.Constraint("Vertical", 0))
sketch18.addConstraint(Sketcher.Constraint("Horizontal", 1))
sketch18.addConstraint(Sketcher.Constraint("Vertical", 2))
sketch18.addConstraint(Sketcher.Constraint("Horizontal", 3))
sketch18.addConstraint(Sketcher.Constraint("Vertical", 4))
sketch18.addConstraint(Sketcher.Constraint("Horizontal", 5))
sketch18.addConstraint(Sketcher.Constraint("Vertical", 6))
sketch18.addConstraint(Sketcher.Constraint("Horizontal", 7))
sketch18.addConstraint(Sketcher.Constraint("PointOnObject", 2, 2, -1))
sketch18.addConstraint(Sketcher.Constraint("PointOnObject", 6, 2, -1))
sketch18.addConstraint(Sketcher.Constraint("Horizontal", 1, 2, 4, 2))
sketch18.addConstraint(Sketcher.Constraint("Equal", 3, 5))
sketch18.addConstraint(Sketcher.Constraint("DistanceX", 1, 1, 1, 2, Q("0.1 in")))
sketch18.addConstraint(Sketcher.Constraint("DistanceY", 0, 1, 0, 2, Q("1.55 in")))
sketch18.addConstraint(Sketcher.Constraint("DistanceX", 1, 2, 4, 2, Q("0.145 in")))
sketch18.addConstraint(Sketcher.Constraint("DistanceX", -1, 1, 0, 2, Q("30.29585 mm")))
pad4 = body.newObject("PartDesign::Pad", "Pad003")
pad4.Profile = sketch18
pad4.Length = Q("0.1 in")
pad4.Reversed = True

doc.recompute()
